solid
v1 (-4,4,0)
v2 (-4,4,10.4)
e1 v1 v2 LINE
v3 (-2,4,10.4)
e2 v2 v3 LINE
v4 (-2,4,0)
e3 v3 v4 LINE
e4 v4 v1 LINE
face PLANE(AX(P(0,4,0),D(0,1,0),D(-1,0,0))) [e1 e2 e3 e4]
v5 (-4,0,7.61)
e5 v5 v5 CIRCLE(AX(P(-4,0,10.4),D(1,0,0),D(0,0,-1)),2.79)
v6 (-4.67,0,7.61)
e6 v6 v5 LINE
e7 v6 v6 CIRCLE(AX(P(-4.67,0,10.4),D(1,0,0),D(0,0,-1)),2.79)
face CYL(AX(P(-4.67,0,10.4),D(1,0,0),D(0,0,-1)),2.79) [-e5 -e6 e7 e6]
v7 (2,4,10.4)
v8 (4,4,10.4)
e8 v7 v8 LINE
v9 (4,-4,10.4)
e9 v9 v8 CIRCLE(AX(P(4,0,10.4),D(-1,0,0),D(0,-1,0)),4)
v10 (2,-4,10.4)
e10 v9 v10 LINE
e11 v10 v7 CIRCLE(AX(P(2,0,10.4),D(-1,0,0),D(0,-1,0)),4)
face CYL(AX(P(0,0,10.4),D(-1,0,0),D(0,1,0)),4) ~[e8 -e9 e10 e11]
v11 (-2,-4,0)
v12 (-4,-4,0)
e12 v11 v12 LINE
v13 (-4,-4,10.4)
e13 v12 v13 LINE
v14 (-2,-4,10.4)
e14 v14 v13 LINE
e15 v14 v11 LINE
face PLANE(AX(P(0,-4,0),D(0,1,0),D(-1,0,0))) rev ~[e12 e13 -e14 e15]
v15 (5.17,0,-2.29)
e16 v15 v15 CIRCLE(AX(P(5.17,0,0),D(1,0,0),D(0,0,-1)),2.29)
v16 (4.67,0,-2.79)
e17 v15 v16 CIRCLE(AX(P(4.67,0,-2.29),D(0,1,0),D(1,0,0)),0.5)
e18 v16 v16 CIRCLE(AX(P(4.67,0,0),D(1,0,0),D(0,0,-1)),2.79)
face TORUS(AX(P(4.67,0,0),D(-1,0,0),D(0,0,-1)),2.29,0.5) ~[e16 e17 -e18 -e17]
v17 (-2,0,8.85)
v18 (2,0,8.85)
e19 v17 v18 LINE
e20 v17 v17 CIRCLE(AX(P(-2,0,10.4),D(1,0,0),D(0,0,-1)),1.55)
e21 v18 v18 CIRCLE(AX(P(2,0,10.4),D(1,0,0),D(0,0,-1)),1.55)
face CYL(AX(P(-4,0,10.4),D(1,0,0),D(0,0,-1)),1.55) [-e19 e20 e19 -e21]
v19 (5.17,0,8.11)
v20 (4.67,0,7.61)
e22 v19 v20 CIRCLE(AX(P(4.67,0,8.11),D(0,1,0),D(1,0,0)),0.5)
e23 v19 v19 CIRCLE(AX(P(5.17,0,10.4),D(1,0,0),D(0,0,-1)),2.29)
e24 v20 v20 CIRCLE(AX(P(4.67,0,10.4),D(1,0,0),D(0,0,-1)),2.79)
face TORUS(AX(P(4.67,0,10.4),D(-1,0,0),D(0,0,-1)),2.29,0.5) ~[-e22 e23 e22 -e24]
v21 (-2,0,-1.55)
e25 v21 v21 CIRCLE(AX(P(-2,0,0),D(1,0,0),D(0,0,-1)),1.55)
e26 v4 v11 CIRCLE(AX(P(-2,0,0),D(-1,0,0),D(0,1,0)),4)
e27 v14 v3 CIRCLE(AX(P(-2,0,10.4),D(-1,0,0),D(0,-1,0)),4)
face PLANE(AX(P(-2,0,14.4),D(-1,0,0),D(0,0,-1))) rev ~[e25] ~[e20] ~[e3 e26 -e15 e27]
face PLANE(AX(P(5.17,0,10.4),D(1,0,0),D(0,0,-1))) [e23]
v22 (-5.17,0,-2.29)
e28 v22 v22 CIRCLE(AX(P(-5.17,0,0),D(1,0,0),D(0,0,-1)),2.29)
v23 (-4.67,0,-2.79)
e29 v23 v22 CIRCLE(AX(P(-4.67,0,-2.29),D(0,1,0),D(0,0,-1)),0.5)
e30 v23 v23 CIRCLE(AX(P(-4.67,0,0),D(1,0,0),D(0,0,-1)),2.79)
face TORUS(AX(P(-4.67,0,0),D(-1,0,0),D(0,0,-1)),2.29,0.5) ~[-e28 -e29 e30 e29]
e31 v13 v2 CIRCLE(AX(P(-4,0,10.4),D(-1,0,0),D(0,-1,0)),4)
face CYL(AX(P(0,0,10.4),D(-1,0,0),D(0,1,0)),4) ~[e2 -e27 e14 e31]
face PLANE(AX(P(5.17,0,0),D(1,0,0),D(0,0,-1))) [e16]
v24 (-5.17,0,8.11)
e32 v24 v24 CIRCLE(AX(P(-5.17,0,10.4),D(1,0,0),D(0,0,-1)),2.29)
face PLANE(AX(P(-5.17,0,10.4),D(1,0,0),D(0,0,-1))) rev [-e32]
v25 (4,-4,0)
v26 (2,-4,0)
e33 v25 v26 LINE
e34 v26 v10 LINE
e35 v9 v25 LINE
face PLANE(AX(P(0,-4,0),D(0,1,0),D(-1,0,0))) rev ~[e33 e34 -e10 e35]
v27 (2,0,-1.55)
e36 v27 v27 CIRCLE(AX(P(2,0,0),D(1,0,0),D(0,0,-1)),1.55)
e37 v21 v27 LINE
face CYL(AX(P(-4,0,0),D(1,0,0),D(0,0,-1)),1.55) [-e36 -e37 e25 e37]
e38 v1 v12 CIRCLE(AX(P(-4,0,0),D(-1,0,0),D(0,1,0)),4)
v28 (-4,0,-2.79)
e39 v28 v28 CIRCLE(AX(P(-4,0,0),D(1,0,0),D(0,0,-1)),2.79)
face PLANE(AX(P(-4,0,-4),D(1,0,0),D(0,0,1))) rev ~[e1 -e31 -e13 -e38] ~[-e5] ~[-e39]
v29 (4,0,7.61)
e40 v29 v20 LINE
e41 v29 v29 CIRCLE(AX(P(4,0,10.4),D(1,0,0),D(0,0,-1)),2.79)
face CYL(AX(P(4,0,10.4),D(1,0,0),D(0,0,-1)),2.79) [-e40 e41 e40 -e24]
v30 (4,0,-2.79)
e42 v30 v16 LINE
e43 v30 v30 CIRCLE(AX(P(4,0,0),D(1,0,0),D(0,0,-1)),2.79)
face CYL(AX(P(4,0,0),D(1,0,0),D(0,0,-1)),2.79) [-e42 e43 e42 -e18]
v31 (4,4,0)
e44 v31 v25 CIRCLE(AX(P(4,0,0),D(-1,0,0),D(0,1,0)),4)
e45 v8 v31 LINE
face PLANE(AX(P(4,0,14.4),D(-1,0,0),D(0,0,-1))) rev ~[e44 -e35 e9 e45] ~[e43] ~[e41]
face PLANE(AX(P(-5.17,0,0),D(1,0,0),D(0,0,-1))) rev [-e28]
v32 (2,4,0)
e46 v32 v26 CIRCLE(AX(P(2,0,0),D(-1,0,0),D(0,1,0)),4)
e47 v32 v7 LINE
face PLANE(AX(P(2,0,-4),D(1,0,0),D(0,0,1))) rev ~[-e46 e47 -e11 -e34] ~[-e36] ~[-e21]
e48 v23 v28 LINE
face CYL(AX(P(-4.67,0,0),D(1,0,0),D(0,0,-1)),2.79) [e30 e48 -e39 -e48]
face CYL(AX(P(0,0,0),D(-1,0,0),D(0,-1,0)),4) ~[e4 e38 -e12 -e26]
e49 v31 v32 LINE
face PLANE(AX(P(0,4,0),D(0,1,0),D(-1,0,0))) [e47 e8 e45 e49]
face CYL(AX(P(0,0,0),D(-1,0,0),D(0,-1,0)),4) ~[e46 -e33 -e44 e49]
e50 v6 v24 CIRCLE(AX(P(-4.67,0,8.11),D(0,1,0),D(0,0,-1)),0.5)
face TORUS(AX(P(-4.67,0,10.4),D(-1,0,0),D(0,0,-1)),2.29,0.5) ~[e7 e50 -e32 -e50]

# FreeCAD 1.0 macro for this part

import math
import FreeCAD as App
import Part
import Sketcher

V = App.Vector

doc = App.newDocument("Part")
body = doc.addObject("PartDesign::Body", "Body")

# Sketch on XZ plane
sketch1 = doc.addObject("Sketcher::SketchObject", "Sketch")
body.addObject(sketch1)
sketch1.AttachmentSupport = (doc.XZ_Plane, [""])
sketch1.MapMode = "FlatFace"
sketch1.addGeometry([
    Part.LineSegment(V(-4, -4, 0), V(-4, 14.4, 0)),
    Part.LineSegment(V(-4, 14.4, 0), V(-2, 14.4, 0)),
    Part.LineSegment(V(-2, 14.4, 0), V(-2, -4, 0)),
    Part.LineSegment(V(-2, -4, 0), V(-4, -4, 0)),
], False)
sketch1.addConstraint([
    Sketcher.Constraint("Coincident", 0, 2, 1, 1),
    Sketcher.Constraint("Coincident", 1, 2, 2, 1),
    Sketcher.Constraint("Coincident", 2, 2, 3, 1),
    Sketcher.Constraint("Coincident", 3, 2, 0, 1),
    Sketcher.Constraint("Vertical", 0),
    Sketcher.Constraint("Horizontal", 1),
    Sketcher.Constraint("Vertical", 2),
    Sketcher.Constraint("Horizontal", 3),
    Sketcher.Constraint("DistanceX", 1, 1, 1, 2, 2.0),
    Sketcher.Constraint("DistanceY", 0, 1, 0, 2, 18.4),
    Sketcher.Constraint("DistanceX", 0, 2, -1, 1, 4.0),
    Sketcher.Constraint("DistanceY", 2, 2, -1, 1, 4.0),
])
pad1 = doc.addObject("PartDesign::Pad", "Pad")
body.addObject(pad1)
pad1.Profile = sketch1
pad1.Length = 8
pad1.Midplane = True

# Sketch on XZ plane
sketch2 = doc.addObject("Sketcher::SketchObject", "Sketch001")
body.addObject(sketch2)
sketch2.AttachmentSupport = (doc.XZ_Plane, [""])
sketch2.MapMode = "FlatFace"
sketch2.addGeometry([
    Part.LineSegment(V(-5.2, 0, 0), V(5.2, 0, 0)),  # 0
    Part.LineSegment(V(5.2, 0, 0), V(5.2, -2.3, 0)),  # 1
    Part.ArcOfCircle(Part.Circle(V(4.7, -2.3, 0), V(0, 0, 1), 0.5), math.radians(-90), math.radians(0)),  # 2
    Part.LineSegment(V(4.7, -2.8, 0), V(4, -2.8, 0)),  # 3
    Part.LineSegment(V(4, -2.8, 0), V(4, -1.6, 0)),  # 4
    Part.LineSegment(V(4, -1.6, 0), V(-4, -1.6, 0)),  # 5
    Part.LineSegment(V(-4, -1.6, 0), V(-4, -2.8, 0)),  # 6
    Part.LineSegment(V(-4, -2.8, 0), V(-4.7, -2.8, 0)),  # 7
    Part.ArcOfCircle(Part.Circle(V(-4.7, -2.3, 0), V(0, 0, 1), 0.5), math.radians(180), math.radians(270)),  # 8
    Part.LineSegment(V(-5.2, -2.3, 0), V(-5.2, 0, 0)),  # 9
], False)
sketch2.addConstraint([
    Sketcher.Constraint("Coincident", 0, 2, 1, 1),
    Sketcher.Constraint("Tangent", 1, 2, 2, 2),
    Sketcher.Constraint("Tangent", 2, 1, 3, 1),
    Sketcher.Constraint("Coincident", 3, 2, 4, 1),
    Sketcher.Constraint("Coincident", 4, 2, 5, 1),
    Sketcher.Constraint("Coincident", 5, 2, 6, 1),
    Sketcher.Constraint("Coincident", 6, 2, 7, 1),
    Sketcher.Constraint("Tangent", 7, 2, 8, 2),
    Sketcher.Constraint("Tangent", 8, 1, 9, 1),
    Sketcher.Constraint("Coincident", 9, 2, 0, 1),
    Sketcher.Constraint("Horizontal", 0),
    Sketcher.Constraint("Vertical", 1),
    Sketcher.Constraint("Horizontal", 3),
    Sketcher.Constraint("Vertical", 4),
    Sketcher.Constraint("Horizontal", 5),
    Sketcher.Constraint("Vertical", 6),
    Sketcher.Constraint("Horizontal", 7),
    Sketcher.Constraint("Vertical", 9),
    Sketcher.Constraint("Equal", 2, 8),
    Sketcher.Constraint("Symmetric", 0, 2, 9, 2, -1, 1),
    Sketcher.Constraint("Symmetric", 3, 2, 6, 2, -2),
    Sketcher.Constraint("Radius", 2, 0.5),
    Sketcher.Constraint("DistanceX", 5, 2, 5, 1, 8.0),
    Sketcher.Constraint("DistanceX", 0, 1, 0, 2, 10.34),
    Sketcher.Constraint("DistanceY", 1, 2, 1, 1, 2.29),
    Sketcher.Constraint("DistanceY", 4, 1, 4, 2, 1.24),
])
revolution = doc.addObject("PartDesign::Revolution", "Revolution")
body.addObject(revolution)
revolution.Profile = sketch2
revolution.ReferenceAxis = (sketch2, ["H_Axis"])
revolution.Angle = 360

# Sketch on XZ plane
sketch3 = doc.addObject("Sketcher::SketchObject", "Sketch002")
body.addObject(sketch3)
sketch3.AttachmentSupport = (doc.XZ_Plane, [""])
sketch3.MapMode = "FlatFace"
sketch3.addGeometry([
    Part.LineSegment(V(-5.17, 10.4, 0), V(5.17, 10.4, 0)),  # 0
    Part.LineSegment(V(5.17, 10.4, 0), V(5.17, 8.11, 0)),  # 1
    Part.ArcOfCircle(Part.Circle(V(4.67, 8.11, 0), V(0, 0, 1), 0.5), math.radians(-90), math.radians(0)),  # 2
    Part.LineSegment(V(4.67, 7.61, 0), V(4, 7.61, 0)),  # 3
    Part.LineSegment(V(4, 7.61, 0), V(4, 8.85, 0)),  # 4
    Part.LineSegment(V(4, 8.85, 0), V(-4, 8.85, 0)),  # 5
    Part.LineSegment(V(-4, 8.85, 0), V(-4, 7.61, 0)),  # 6
    Part.LineSegment(V(-4, 7.61, 0), V(-4.67, 7.61, 0)),  # 7
    Part.ArcOfCircle(Part.Circle(V(-4.67, 8.11, 0), V(0, 0, 1), 0.5), math.radians(180), math.radians(270)),  # 8
    Part.LineSegment(V(-5.17, 8.11, 0), V(-5.17, 10.4, 0)),  # 9
], False)
sketch3.addGeometry(Part.LineSegment(V(-5.17, 10.4, 0), V(5.17, 10.4, 0)), True)  # axis
sketch3.addConstraint([
    Sketcher.Constraint("Coincident", 0, 2, 1, 1),
    Sketcher.Constraint("Tangent", 1, 2, 2, 2),
    Sketcher.Constraint("Tangent", 2, 1, 3, 1),
    Sketcher.Constraint("Coincident", 3, 2, 4, 1),
    Sketcher.Constraint("Coincident", 4, 2, 5, 1),
    Sketcher.Constraint("Coincident", 5, 2, 6, 1),
    Sketcher.Constraint("Coincident", 6, 2, 7, 1),
    Sketcher.Constraint("Tangent", 7, 2, 8, 2),
    Sketcher.Constraint("Tangent", 8, 1, 9, 1),
    Sketcher.Constraint("Coincident", 9, 2, 0, 1),
    Sketcher.Constraint("Horizontal", 0),
    Sketcher.Constraint("Vertical", 1),
    Sketcher.Constraint("Horizontal", 3),
    Sketcher.Constraint("Vertical", 4),
    Sketcher.Constraint("Horizontal", 5),
    Sketcher.Constraint("Vertical", 6),
    Sketcher.Constraint("Horizontal", 7),
    Sketcher.Constraint("Vertical", 9),
    Sketcher.Constraint("Horizontal", 10),
    Sketcher.Constraint("Coincident", 10, 1, 9, 2),
    Sketcher.Constraint("Equal", 2, 8),
    Sketcher.Constraint("Symmetric", 2, 3, 8, 3, -2),
    Sketcher.Constraint("Vertical", 1, 2, 10, 2),
    Sketcher.Constraint("Equal", 3, 7),
    Sketcher.Constraint("Radius", 2, 0.5),
    Sketcher.Constraint("DistanceX", 5, 2, 5, 1, 8.0),
    Sketcher.Constraint("DistanceX", 0, 1, 0, 2, 10.34),
    Sketcher.Constraint("DistanceY", 1, 2, 1, 1, 2.29),
    Sketcher.Constraint("DistanceY", 4, 1, 4, 2, 1.24),
    Sketcher.Constraint("DistanceY", -1, 1, 0, 2, 10.4),
])
revolution2 = doc.addObject("PartDesign::Revolution", "Revolution001")
body.addObject(revolution2)
revolution2.Profile = sketch3
revolution2.ReferenceAxis = (sketch3, ["Axis0"])
revolution2.Angle = 360

# Sketch on XZ plane
sketch4 = doc.addObject("Sketcher::SketchObject", "Sketch003")
body.addObject(sketch4)
sketch4.AttachmentSupport = (doc.XZ_Plane, [""])
sketch4.MapMode = "FlatFace"
sketch4.addGeometry([
    Part.LineSegment(V(2, -4, 0), V(2, 14.4, 0)),
    Part.LineSegment(V(2, 14.4, 0), V(4, 14.4, 0)),
    Part.LineSegment(V(4, 14.4, 0), V(4, -4, 0)),
    Part.LineSegment(V(4, -4, 0), V(2, -4, 0)),
], False)
sketch4.addConstraint([
    Sketcher.Constraint("Coincident", 0, 2, 1, 1),
    Sketcher.Constraint("Coincident", 1, 2, 2, 1),
    Sketcher.Constraint("Coincident", 2, 2, 3, 1),
    Sketcher.Constraint("Coincident", 3, 2, 0, 1),
    Sketcher.Constraint("Vertical", 0),
    Sketcher.Constraint("Horizontal", 1),
    Sketcher.Constraint("Vertical", 2),
    Sketcher.Constraint("Horizontal", 3),
    Sketcher.Constraint("DistanceX", 1, 1, 1, 2, 2.0),
    Sketcher.Constraint("DistanceY", 0, 1, 0, 2, 18.4),
    Sketcher.Constraint("DistanceX", -1, 1, 0, 2, 2.0),
    Sketcher.Constraint("DistanceY", 2, 2, -1, 1, 4.0),
])
pad2 = doc.addObject("PartDesign::Pad", "Pad001")
body.addObject(pad2)
pad2.Profile = sketch4
pad2.Length = 8
pad2.Midplane = True

# Sketch on YZ plane
sketch5 = doc.addObject("Sketcher::SketchObject", "Sketch004")
body.addObject(sketch5)
sketch5.AttachmentSupport = (doc.YZ_Plane, [""])
sketch5.MapMode = "FlatFace"
sketch5.addGeometry([
    Part.LineSegment(V(10, 30, 0), V(-20, 30, 0)),  # 0
    Part.LineSegment(V(-20, 30, 0), V(-20, -40, 0)),  # 1
    Part.LineSegment(V(-20, -40, 0), V(10, -40, 0)),  # 2
    Part.LineSegment(V(10, -40, 0), V(10, 30, 0)),  # 3
    Part.ArcOfCircle(Part.Circle(V(0, 10.4, 0), V(0, 0, 1), 4), math.radians(0), math.radians(180)),  # 4
    Part.LineSegment(V(4, 10.4, 0), V(4, 0, 0)),  # 5
    Part.ArcOfCircle(Part.Circle(V(0, 0, 0), V(0, 0, 1), 4), math.radians(180), math.radians(360)),  # 6
    Part.LineSegment(V(-4, 0, 0), V(-4, 10.4, 0)),  # 7
], False)
sketch5.addConstraint([
    Sketcher.Constraint("Coincident", 0, 2, 1, 1),
    Sketcher.Constraint("Coincident", 1, 2, 2, 1),
    Sketcher.Constraint("Coincident", 2, 2, 3, 1),
    Sketcher.Constraint("Coincident", 3, 2, 0, 1),
    Sketcher.Constraint("Tangent", 4, 1, 5, 1),
    Sketcher.Constraint("Tangent", 5, 2, 6, 2),
    Sketcher.Constraint("Tangent", 6, 1, 7, 1),
    Sketcher.Constraint("Tangent", 7, 2, 4, 2),
    Sketcher.Constraint("Horizontal", 0),
    Sketcher.Constraint("Vertical", 1),
    Sketcher.Constraint("Horizontal", 2),
    Sketcher.Constraint("Vertical", 3),
    Sketcher.Constraint("Vertical", 5),
    Sketcher.Constraint("Vertical", 7),
    Sketcher.Constraint("Coincident", 6, 3, -1, 1),
    Sketcher.Constraint("Radius", 4, 4.0),
    Sketcher.Constraint("DistanceX", 0, 2, 0, 1, 30.0),
    Sketcher.Constraint("DistanceY", 1, 2, 1, 1, 70.0),
    Sketcher.Constraint("DistanceY", 5, 2, 5, 1, 10.4),
    Sketcher.Constraint("DistanceX", 0, 2, -1, 1, 20.0),
    Sketcher.Constraint("DistanceY", -1, 1, 0, 2, 30.0),
])
pocket1 = doc.addObject("PartDesign::Pocket", "Pocket")
body.addObject(pocket1)
pocket1.Profile = sketch5
pocket1.Length = 20
pocket1.Midplane = True

doc.recompute()
